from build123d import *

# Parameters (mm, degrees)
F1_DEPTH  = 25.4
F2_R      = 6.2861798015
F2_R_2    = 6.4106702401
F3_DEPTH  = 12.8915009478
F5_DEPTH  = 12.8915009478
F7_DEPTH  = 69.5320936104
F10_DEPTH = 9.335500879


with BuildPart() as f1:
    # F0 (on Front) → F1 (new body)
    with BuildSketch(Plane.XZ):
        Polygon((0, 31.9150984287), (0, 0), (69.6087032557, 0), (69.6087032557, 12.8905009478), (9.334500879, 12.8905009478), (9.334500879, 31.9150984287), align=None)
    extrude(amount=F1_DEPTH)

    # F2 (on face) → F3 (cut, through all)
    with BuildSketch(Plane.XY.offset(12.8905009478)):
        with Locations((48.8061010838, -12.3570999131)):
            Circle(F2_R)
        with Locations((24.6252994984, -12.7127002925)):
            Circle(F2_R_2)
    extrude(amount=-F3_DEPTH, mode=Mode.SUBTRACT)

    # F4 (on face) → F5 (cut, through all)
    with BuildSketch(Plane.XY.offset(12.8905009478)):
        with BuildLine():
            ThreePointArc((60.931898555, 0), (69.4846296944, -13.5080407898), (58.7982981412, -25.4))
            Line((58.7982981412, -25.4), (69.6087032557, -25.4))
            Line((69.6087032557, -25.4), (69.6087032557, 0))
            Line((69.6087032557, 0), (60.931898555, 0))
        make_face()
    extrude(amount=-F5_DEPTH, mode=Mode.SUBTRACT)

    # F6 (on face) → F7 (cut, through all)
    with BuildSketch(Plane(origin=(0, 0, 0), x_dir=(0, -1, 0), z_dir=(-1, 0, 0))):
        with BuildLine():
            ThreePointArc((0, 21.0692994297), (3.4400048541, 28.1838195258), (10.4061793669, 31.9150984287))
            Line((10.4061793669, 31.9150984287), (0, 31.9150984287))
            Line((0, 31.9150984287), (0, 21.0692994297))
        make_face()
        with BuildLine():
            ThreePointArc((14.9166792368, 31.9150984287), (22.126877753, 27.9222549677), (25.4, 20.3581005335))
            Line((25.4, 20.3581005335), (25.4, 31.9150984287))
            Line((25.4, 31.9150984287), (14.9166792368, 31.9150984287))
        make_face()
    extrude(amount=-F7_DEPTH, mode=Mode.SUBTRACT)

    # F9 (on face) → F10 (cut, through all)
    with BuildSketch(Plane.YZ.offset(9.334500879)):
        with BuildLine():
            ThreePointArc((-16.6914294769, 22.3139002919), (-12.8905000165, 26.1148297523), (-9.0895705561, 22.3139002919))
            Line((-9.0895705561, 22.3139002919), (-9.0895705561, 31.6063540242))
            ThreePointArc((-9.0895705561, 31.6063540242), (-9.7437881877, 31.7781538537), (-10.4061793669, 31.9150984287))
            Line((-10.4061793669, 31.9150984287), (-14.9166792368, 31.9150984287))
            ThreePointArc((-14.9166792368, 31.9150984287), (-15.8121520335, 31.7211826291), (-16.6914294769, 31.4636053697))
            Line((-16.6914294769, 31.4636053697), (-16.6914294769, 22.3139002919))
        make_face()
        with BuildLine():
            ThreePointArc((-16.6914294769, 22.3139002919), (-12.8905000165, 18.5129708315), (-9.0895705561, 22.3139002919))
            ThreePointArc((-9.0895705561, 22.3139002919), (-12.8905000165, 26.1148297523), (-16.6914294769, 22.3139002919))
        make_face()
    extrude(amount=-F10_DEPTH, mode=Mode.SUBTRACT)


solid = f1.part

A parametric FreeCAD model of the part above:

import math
import FreeCAD as App
import Part
import Sketcher
Q = App.Units.Quantity


def add_polygon(sketch, points):
    """Adds a closed chain of lines whose ends are joined by coincident constraints."""
    first, n = sketch.GeometryCount, len(points)
    for a, b in zip(points, points[1:] + points[:1]):
        sketch.addGeometry(Part.LineSegment(App.Vector(*a, 0), App.Vector(*b, 0)), False)
    for i in range(n):
        sketch.addConstraint(Sketcher.Constraint("Coincident", first + i, 2, first + (i + 1) % n, 1))

doc = App.newDocument("Part")
body = doc.addObject("PartDesign::Body", "Body")

# Sketch on XZ plane
sketch1 = body.newObject("Sketcher::SketchObject", "Sketch")
sketch1.AttachmentSupport = (doc.getObject("XZ_Plane"), [""])
sketch1.MapMode = "FlatFace"
add_polygon(sketch1, [(0, 32), (0, 0), (70, 0), (70, 13), (9, 13), (9, 32)])  # lines 0-5
sketch1.addConstraint(Sketcher.Constraint("Vertical", 0))
sketch1.addConstraint(Sketcher.Constraint("Horizontal", 1))
sketch1.addConstraint(Sketcher.Constraint("Vertical", 2))
sketch1.addConstraint(Sketcher.Constraint("Horizontal", 3))
sketch1.addConstraint(Sketcher.Constraint("Vertical", 4))
sketch1.addConstraint(Sketcher.Constraint("Horizontal", 5))
sketch1.addConstraint(Sketcher.Constraint("Coincident", 0, 2, -1, 1))
sketch1.addConstraint(Sketcher.Constraint("DistanceX", 3, 2, 3, 1, Q("2.3730001 in")))
sketch1.addConstraint(Sketcher.Constraint("DistanceY", 4, 1, 4, 2, Q("0.7489999 in")))
sketch1.addConstraint(Sketcher.Constraint("DistanceX", 1, 1, 1, 2, Q("2.7405001 in")))
sketch1.addConstraint(Sketcher.Constraint("DistanceY", 0, 2, 0, 1, Q("1.2564999 in")))
pad1 = body.newObject("PartDesign::Pad", "Pad")
pad1.Profile = sketch1
pad1.Length = Q("1 in")

# Sketch on XY plane
sketch2 = body.newObject("Sketcher::SketchObject", "Sketch001")
sketch2.AttachmentSupport = (doc.getObject("XY_Plane"), [""])
sketch2.MapMode = "FlatFace"
sketch2.AttachmentOffset = App.Placement(App.Vector(0, 0, 0.5075 * 25.4), App.Rotation())
sketch2.addGeometry(Part.Circle(App.Vector(49, -12, 0), App.Vector(0, 0, 1), 6), False)
sketch2.addGeometry(Part.Circle(App.Vector(25, -13, 0), App.Vector(0, 0, 1), 6), False)
sketch2.addConstraint(Sketcher.Constraint("Diameter", 0, Q("12.57236 mm")))
sketch2.addConstraint(Sketcher.Constraint("Diameter", 1, Q("12.82134 mm")))
sketch2.addConstraint(Sketcher.Constraint("DistanceX", 1, 3, 0, 3, Q("0.9520001 in")))
sketch2.addConstraint(Sketcher.Constraint("DistanceY", 1, 3, 0, 3, Q("0.014 in")))
sketch2.addConstraint(Sketcher.Constraint("DistanceX", -1, 1, 0, 3, Q("1.9215 in")))
sketch2.addConstraint(Sketcher.Constraint("DistanceY", 0, 3, -1, 1, Q("0.4865 in")))
pocket1 = body.newObject("PartDesign::Pocket", "Pocket")
pocket1.Profile = sketch2
pocket1.Type = "ThroughAll"

# Sketch on XY plane
sketch3 = body.newObject("Sketcher::SketchObject", "Sketch002")
sketch3.AttachmentSupport = (doc.getObject("XY_Plane"), [""])
sketch3.MapMode = "FlatFace"
sketch3.AttachmentOffset = App.Placement(App.Vector(0, 0, 0.5075 * 25.4), App.Rotation())
sketch3.addGeometry(Part.ArcOfCircle(Part.Circle(App.Vector(56, -12, 0), App.Vector(0, 0, 1), 13), math.radians(-79), math.radians(69)), False)
sketch3.addGeometry(Part.LineSegment(App.Vector(59, -25, 0), App.Vector(70, -25, 0)), False)
sketch3.addGeometry(Part.LineSegment(App.Vector(70, -25, 0), App.Vector(70, 0, 0)), False)
sketch3.addGeometry(Part.LineSegment(App.Vector(70, 0, 0), App.Vector(61, 0, 0)), False)
sketch3.addConstraint(Sketcher.Constraint("Coincident", 0, 1, 1, 1))
sketch3.addConstraint(Sketcher.Constraint("Coincident", 1, 2, 2, 1))
sketch3.addConstraint(Sketcher.Constraint("Coincident", 2, 2, 3, 1))
sketch3.addConstraint(Sketcher.Constraint("Coincident", 3, 2, 0, 2))
sketch3.addConstraint(Sketcher.Constraint("Horizontal", 1))
sketch3.addConstraint(Sketcher.Constraint("Vertical", 2))
sketch3.addConstraint(Sketcher.Constraint("Horizontal", 3))
sketch3.addConstraint(Sketcher.Constraint("PointOnObject", 2, 2, -1))
sketch3.addConstraint(Sketcher.Constraint("DistanceY", 2, 1, 2, 2, Q("1 in")))
sketch3.addConstraint(Sketcher.Constraint("DistanceX", 0, 1, 3, 2, Q("0.084 in")))
sketch3.addConstraint(Sketcher.Constraint("DistanceX", -1, 1, 1, 2, Q("2.7405001 in")))
sketch3.addConstraint(Sketcher.Constraint("Radius", 0, Q("13.239694 mm")))
sketch3.addConstraint(Sketcher.Constraint("DistanceX", -1, 1, 0, 3, Q("56.291399 mm")))
pocket2 = body.newObject("PartDesign::Pocket", "Pocket001")
pocket2.Profile = sketch3
pocket2.Type = "ThroughAll"

# Sketch on YZ plane
sketch4 = body.newObject("Sketcher::SketchObject", "Sketch003")
sketch4.AttachmentSupport = (doc.getObject("YZ_Plane"), [""])
sketch4.MapMode = "FlatFace"
sketch4.addGeometry(Part.ArcOfCircle(Part.Circle(App.Vector(-13, 19, 0), App.Vector(0, 0, 1), 13), math.radians(8), math.radians(80)), False)
sketch4.addGeometry(Part.LineSegment(App.Vector(-10, 32, 0), App.Vector(0, 32, 0)), False)
sketch4.addGeometry(Part.LineSegment(App.Vector(0, 32, 0), App.Vector(0, 21, 0)), False)
sketch4.addGeometry(Part.ArcOfCircle(Part.Circle(App.Vector(-13, 19, 0), App.Vector(0, 0, 1), 13), math.radians(100), math.radians(175)), False)
sketch4.addGeometry(Part.LineSegment(App.Vector(-25, 20, 0), App.Vector(-25, 32, 0)), False)
sketch4.addGeometry(Part.LineSegment(App.Vector(-25, 32, 0), App.Vector(-15, 32, 0)), False)
sketch4.addConstraint(Sketcher.Constraint("Coincident", 0, 2, 1, 1))
sketch4.addConstraint(Sketcher.Constraint("Coincident", 1, 2, 2, 1))
sketch4.addConstraint(Sketcher.Constraint("Coincident", 2, 2, 0, 1))
sketch4.addConstraint(Sketcher.Constraint("Coincident", 3, 2, 4, 1))
sketch4.addConstraint(Sketcher.Constraint("Coincident", 4, 2, 5, 1))
sketch4.addConstraint(Sketcher.Constraint("Coincident", 5, 2, 3, 1))
sketch4.addConstraint(Sketcher.Constraint("Horizontal", 1))
sketch4.addConstraint(Sketcher.Constraint("Vertical", 2))
sketch4.addConstraint(Sketcher.Constraint("Vertical", 4))
sketch4.addConstraint(Sketcher.Constraint("Horizontal", 5))
sketch4.addConstraint(Sketcher.Constraint("Coincident", 3, 3, 0, 3))
sketch4.addConstraint(Sketcher.Constraint("Equal", 0, 3))
sketch4.addConstraint(Sketcher.Constraint("PointOnObject", 1, 2, -2))
sketch4.addConstraint(Sketcher.Constraint("Horizontal", 1, 2, 4, 2))
sketch4.addConstraint(Sketcher.Constraint("DistanceX", 3, 2, -1, 1, Q("1 in")))
sketch4.addConstraint(Sketcher.Constraint("DistanceY", 2, 2, 2, 1, Q("0.427 in")))
sketch4.addConstraint(Sketcher.Constraint("DistanceY", 4, 1, 4, 2, Q("0.4549999 in")))
sketch4.addConstraint(Sketcher.Constraint("DistanceY", -1, 1, 0, 2, Q("1.2564999 in")))
sketch4.addConstraint(Sketcher.Constraint("Radius", 0, Q("12.779496 mm")))
pocket3 = body.newObject("PartDesign::Pocket", "Pocket002")
pocket3.Profile = sketch4
pocket3.Type = "ThroughAll"
pocket3.Reversed = True

# Sketch on YZ plane
sketch5 = body.newObject("Sketcher::SketchObject", "Sketch004")
sketch5.AttachmentSupport = (doc.getObject("YZ_Plane"), [""])
sketch5.MapMode = "FlatFace"
sketch5.AttachmentOffset = App.Placement(App.Vector(0, 0, 0.3675 * 25.4), App.Rotation())
sketch5.addGeometry(Part.LineSegment(App.Vector(-9.1, 22.3, 0), App.Vector(-9.1, 31.6, 0)), False)
sketch5.addGeometry(Part.ArcOfCircle(Part.Circle(App.Vector(-12.7, 19.3, 0), App.Vector(0, 0, 1), 12.8), math.radians(73.77), math.radians(79.84)), False)
sketch5.addGeometry(Part.LineSegment(App.Vector(-10.4, 31.9, 0), App.Vector(-14.9, 31.9, 0)), False)
sketch5.addGeometry(Part.ArcOfCircle(Part.Circle(App.Vector(-12.7, 19.3, 0), App.Vector(0, 0, 1), 12.8), math.radians(100.16), math.radians(108.38)), False)
sketch5.addGeometry(Part.LineSegment(App.Vector(-16.7, 31.5, 0), App.Vector(-16.7, 22.3, 0)), False)
sketch5.addGeometry(Part.ArcOfCircle(Part.Circle(App.Vector(-12.9, 22.3, 0), App.Vector(0, 0, 1), 3.8), math.radians(180), math.radians(360)), False)
sketch5.addConstraint(Sketcher.Constraint("Coincident", 0, 2, 1, 1))
sketch5.addConstraint(Sketcher.Constraint("Coincident", 1, 2, 2, 1))
sketch5.addConstraint(Sketcher.Constraint("Coincident", 2, 2, 3, 1))
sketch5.addConstraint(Sketcher.Constraint("Coincident", 3, 2, 4, 1))
sketch5.addConstraint(Sketcher.Constraint("Tangent", 4, 2, 5, 1))
sketch5.addConstraint(Sketcher.Constraint("Tangent", 5, 2, 0, 1))
sketch5.addConstraint(Sketcher.Constraint("Vertical", 0))
sketch5.addConstraint(Sketcher.Constraint("Horizontal", 2))
sketch5.addConstraint(Sketcher.Constraint("Vertical", 4))
sketch5.addConstraint(Sketcher.Constraint("Coincident", 3, 3, 1, 3))
sketch5.addConstraint(Sketcher.Constraint("Equal", 1, 3))
sketch5.addConstraint(Sketcher.Constraint("Radius", 5, Q("3.800929 mm")))
sketch5.addConstraint(Sketcher.Constraint("DistanceY", 5, 3, 1, 2, Q("0.3779999 in")))
sketch5.addConstraint(Sketcher.Constraint("DistanceX", 2, 2, 2, 1, Q("4.5105 mm")))
sketch5.addConstraint(Sketcher.Constraint("DistanceX", 5, 3, -1, 1, Q("0.5075 in")))
sketch5.addConstraint(Sketcher.Constraint("DistanceY", -1, 1, 5, 3, Q("0.8785 in")))
sketch5.addConstraint(Sketcher.Constraint("Radius", 1, Q("12.779496 mm")))
sketch5.addConstraint(Sketcher.Constraint("DistanceX", 3, 2, 1, 3, Q("4.03 mm")))
pocket4 = body.newObject("PartDesign::Pocket", "Pocket003")
pocket4.Profile = sketch5
pocket4.Type = "ThroughAll"

doc.recompute()
